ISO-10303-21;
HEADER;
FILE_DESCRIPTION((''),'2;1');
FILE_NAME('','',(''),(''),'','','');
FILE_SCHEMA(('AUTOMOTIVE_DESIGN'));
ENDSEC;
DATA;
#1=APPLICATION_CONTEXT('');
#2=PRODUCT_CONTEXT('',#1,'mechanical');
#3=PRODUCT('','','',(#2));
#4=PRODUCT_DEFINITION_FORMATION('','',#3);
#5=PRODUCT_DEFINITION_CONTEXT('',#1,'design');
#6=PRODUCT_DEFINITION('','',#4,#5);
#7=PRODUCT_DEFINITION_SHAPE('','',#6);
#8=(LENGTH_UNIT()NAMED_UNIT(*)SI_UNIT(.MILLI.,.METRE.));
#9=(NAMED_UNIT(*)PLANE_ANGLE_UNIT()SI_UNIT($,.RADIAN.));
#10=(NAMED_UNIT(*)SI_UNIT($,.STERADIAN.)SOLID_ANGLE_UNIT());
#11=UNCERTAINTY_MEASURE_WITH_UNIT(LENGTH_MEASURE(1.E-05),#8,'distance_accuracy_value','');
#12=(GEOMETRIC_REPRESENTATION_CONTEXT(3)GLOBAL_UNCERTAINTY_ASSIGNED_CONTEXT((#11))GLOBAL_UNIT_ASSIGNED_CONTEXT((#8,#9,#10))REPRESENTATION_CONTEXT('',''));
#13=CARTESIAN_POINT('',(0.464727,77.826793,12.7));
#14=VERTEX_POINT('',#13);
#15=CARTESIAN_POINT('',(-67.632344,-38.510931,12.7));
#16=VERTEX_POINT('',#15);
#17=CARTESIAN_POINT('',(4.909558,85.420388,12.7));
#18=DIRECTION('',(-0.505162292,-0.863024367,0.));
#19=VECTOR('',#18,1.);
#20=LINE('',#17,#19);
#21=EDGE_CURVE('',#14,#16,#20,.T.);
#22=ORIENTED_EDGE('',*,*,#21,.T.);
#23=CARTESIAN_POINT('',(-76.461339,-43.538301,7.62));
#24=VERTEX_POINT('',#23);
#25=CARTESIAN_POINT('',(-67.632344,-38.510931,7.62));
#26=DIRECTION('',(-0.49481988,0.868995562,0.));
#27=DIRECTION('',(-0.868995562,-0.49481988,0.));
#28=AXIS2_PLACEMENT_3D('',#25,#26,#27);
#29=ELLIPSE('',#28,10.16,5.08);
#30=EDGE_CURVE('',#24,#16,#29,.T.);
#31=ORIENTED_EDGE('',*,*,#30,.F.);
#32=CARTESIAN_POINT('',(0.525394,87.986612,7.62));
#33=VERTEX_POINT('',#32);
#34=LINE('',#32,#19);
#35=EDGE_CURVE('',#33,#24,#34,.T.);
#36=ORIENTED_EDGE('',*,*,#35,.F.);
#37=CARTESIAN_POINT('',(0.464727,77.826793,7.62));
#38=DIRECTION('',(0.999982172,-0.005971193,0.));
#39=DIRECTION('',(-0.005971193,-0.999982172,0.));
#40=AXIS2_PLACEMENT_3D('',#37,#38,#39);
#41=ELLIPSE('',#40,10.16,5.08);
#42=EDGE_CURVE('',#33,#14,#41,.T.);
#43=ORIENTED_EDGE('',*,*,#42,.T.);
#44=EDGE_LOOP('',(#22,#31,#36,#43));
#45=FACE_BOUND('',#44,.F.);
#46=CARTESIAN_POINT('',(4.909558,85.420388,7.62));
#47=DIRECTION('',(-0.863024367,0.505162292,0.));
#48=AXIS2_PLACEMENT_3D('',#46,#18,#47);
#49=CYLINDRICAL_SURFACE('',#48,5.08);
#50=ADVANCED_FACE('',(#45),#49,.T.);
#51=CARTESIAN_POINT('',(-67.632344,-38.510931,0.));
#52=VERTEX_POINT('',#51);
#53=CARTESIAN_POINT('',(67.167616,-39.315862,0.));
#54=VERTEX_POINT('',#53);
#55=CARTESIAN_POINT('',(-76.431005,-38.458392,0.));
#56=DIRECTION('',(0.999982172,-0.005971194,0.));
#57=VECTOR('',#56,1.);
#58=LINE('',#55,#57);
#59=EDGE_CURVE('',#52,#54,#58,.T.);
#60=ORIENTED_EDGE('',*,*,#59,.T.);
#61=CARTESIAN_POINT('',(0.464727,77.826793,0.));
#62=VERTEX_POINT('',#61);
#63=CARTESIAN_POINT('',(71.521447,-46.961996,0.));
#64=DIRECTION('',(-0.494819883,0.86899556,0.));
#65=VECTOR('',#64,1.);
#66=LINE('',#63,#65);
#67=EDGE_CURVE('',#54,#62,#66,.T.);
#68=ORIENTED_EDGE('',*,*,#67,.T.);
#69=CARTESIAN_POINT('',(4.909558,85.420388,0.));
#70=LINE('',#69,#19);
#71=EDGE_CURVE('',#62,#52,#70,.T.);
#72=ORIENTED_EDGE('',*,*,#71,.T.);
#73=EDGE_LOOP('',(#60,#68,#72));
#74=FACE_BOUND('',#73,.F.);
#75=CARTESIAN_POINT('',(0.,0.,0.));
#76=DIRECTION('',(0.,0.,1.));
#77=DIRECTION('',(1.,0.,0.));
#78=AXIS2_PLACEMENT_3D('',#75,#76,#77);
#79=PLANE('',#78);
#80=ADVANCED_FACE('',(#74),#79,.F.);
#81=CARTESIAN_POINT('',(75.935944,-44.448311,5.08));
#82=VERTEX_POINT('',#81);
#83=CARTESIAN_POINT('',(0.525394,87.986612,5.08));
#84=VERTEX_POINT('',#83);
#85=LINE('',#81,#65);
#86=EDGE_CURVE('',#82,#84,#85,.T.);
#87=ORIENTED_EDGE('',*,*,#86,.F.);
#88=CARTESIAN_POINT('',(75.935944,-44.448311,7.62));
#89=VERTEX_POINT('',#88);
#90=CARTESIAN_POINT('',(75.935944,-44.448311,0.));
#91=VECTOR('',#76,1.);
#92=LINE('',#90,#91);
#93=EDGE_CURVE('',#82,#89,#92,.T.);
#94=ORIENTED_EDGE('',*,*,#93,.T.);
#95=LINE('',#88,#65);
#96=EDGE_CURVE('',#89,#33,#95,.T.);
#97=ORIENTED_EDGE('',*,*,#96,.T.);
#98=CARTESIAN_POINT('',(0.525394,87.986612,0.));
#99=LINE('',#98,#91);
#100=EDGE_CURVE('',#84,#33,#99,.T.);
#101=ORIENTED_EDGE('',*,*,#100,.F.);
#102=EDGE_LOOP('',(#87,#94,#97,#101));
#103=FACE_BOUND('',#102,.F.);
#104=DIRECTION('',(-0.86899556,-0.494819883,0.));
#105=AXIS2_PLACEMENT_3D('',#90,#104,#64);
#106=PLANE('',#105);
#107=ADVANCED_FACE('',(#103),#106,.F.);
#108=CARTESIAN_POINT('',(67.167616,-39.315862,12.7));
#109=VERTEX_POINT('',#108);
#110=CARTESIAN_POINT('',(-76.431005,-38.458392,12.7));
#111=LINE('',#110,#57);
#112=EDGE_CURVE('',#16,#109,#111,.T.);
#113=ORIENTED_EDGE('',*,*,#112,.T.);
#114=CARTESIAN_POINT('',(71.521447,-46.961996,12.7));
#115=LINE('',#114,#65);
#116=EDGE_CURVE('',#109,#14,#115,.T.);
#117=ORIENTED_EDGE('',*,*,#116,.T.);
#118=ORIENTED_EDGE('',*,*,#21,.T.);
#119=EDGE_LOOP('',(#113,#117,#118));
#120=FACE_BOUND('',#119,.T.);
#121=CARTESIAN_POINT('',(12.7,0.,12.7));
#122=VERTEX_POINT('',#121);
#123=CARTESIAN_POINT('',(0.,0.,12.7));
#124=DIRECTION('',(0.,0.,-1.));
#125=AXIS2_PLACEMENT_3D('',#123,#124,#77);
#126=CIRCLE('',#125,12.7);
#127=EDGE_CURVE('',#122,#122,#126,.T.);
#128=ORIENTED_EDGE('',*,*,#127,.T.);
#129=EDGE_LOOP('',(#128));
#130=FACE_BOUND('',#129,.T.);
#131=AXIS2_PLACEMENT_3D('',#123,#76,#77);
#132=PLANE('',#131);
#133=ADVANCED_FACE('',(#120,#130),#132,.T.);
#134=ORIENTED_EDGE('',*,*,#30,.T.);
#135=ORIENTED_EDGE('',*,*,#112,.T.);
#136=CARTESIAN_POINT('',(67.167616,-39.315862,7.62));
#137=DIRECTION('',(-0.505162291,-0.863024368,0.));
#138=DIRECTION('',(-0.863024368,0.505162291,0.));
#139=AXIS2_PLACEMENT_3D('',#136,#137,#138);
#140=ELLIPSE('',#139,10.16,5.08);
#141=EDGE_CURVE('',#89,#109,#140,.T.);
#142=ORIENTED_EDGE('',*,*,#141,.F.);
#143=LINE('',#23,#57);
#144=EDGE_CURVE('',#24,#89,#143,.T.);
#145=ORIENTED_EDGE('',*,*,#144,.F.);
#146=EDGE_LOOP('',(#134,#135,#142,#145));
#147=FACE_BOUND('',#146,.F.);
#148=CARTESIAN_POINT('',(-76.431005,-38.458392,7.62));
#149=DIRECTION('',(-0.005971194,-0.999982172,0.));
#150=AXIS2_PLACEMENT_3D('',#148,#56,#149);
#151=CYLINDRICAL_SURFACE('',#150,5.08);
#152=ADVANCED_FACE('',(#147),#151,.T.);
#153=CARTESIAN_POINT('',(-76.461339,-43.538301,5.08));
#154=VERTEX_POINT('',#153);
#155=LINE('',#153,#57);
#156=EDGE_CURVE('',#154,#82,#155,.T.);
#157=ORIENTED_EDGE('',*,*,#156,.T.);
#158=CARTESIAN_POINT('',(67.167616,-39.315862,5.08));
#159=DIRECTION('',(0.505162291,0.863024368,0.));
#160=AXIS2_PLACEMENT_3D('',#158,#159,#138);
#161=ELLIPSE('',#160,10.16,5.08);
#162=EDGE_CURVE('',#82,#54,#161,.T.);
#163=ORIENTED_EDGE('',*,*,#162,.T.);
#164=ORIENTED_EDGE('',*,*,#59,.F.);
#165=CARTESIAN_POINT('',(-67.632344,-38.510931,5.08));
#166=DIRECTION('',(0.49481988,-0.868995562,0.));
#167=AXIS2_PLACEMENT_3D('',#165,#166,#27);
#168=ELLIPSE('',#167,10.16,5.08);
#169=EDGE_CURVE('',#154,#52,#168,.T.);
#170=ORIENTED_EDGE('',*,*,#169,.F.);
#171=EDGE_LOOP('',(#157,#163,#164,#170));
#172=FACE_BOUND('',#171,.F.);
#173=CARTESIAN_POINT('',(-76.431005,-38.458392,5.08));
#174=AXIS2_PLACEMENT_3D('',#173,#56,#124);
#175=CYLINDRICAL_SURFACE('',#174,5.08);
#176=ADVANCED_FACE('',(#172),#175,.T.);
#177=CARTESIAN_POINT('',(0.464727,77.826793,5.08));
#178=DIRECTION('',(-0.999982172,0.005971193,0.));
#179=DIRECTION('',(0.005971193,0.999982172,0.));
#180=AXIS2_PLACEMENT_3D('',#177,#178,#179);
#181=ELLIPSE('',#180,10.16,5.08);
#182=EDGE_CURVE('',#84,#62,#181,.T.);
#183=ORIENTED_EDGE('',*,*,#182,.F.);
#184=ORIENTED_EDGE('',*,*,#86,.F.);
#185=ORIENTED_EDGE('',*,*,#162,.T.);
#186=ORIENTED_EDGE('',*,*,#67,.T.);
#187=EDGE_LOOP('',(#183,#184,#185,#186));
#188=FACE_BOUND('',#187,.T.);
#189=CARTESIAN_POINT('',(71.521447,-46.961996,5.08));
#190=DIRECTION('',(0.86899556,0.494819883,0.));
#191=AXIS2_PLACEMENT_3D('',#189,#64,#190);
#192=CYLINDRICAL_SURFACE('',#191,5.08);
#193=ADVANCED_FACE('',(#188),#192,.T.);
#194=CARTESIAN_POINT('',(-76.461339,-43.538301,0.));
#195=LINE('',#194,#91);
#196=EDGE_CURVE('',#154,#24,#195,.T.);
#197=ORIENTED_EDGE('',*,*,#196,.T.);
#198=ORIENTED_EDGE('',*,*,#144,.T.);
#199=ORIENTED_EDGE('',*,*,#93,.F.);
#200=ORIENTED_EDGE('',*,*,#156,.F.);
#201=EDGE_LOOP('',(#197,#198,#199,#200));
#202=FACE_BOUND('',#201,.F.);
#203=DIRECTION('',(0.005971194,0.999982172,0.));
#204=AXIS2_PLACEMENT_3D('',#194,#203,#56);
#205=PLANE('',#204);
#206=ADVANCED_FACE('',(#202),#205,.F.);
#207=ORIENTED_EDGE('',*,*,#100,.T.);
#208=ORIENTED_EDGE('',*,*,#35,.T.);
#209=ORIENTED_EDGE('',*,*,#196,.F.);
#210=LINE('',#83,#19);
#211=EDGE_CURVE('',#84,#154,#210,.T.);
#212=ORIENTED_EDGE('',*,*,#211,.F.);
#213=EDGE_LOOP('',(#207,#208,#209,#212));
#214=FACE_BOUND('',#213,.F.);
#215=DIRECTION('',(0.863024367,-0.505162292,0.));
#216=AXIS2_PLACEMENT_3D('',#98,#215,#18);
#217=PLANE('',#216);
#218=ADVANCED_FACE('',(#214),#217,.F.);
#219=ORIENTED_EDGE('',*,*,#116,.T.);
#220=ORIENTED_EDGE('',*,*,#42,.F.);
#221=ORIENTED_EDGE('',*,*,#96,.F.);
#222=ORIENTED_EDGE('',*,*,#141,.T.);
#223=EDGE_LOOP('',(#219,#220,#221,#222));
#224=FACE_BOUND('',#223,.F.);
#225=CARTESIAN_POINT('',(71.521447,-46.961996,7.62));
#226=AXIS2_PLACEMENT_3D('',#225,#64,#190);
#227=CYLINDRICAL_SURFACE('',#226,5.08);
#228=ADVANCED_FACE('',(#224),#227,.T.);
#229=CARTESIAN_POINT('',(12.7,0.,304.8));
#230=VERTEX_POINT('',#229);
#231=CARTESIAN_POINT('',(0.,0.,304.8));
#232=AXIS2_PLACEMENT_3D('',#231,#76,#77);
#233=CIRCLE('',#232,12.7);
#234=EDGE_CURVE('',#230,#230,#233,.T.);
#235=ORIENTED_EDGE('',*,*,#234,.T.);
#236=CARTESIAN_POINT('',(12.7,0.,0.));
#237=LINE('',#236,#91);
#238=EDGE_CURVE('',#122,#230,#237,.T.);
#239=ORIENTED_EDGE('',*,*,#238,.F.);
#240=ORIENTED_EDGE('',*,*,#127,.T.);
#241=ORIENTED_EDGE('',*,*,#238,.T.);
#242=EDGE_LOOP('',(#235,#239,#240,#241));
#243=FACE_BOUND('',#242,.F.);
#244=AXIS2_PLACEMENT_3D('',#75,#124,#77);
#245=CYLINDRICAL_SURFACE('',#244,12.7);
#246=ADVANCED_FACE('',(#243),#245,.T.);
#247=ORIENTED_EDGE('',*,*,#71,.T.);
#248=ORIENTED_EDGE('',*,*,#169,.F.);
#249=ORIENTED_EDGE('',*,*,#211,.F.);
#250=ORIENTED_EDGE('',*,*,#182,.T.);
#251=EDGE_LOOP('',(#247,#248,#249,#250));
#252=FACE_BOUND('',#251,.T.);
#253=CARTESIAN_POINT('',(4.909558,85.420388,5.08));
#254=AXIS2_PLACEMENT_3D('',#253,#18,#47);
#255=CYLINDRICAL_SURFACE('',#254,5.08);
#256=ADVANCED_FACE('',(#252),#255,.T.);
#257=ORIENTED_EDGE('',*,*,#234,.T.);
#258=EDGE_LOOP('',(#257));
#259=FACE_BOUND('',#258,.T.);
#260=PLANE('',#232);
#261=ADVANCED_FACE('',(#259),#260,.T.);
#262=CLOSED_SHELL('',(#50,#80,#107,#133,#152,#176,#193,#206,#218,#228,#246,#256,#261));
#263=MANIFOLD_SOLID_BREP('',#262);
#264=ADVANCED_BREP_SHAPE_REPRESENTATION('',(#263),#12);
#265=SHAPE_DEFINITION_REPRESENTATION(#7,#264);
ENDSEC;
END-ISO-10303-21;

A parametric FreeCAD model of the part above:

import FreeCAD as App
import Part
import Sketcher
Q = App.Units.Quantity


def edges_at(feature, points):
    """Names of the edges that pass closest to the given points."""
    edges = feature.Shape.Edges
    near = lambda p: min(range(len(edges)), key=lambda i: edges[i].distToShape(Part.Vertex(*p))[0])
    return sorted({f"Edge{near(p) + 1}" for p in points})


def add_polygon(sketch, points):
    """Adds a closed chain of lines whose ends are joined by coincident constraints."""
    first, n = sketch.GeometryCount, len(points)
    for a, b in zip(points, points[1:] + points[:1]):
        sketch.addGeometry(Part.LineSegment(App.Vector(*a, 0), App.Vector(*b, 0)), False)
    for i in range(n):
        sketch.addConstraint(Sketcher.Constraint("Coincident", first + i, 2, first + (i + 1) % n, 1))

doc = App.newDocument("Part")
body = doc.addObject("PartDesign::Body", "Body")

sketch1 = body.newObject("Sketcher::SketchObject", "Sketch")
sketch1.AttachmentSupport = (doc.getObject("XY_Plane"), [""])
sketch1.MapMode = "FlatFace"
add_polygon(sketch1, [(0.525394, 87.986612), (-76.461339, -43.538301), (75.935944, -44.448311)])
sketch1.addConstraint(Sketcher.Constraint("Equal", 0, 1))
sketch1.addConstraint(Sketcher.Constraint("Equal", 1, 2))
sketch1.addConstraint(Sketcher.Constraint("Distance", 0, Q("6 in")))
sketch1.addConstraint(Sketcher.Constraint("DistanceY", 0, 2, -1, 1, 43.538301))
sketch1.addConstraint(Sketcher.Constraint("DistanceX", 0, 2, -1, 1, 76.461339))
sketch1.addConstraint(Sketcher.Constraint("DistanceY", 1, 2, -1, 1, 44.448311))
pad1 = body.newObject("PartDesign::Pad", "Pad")
pad1.Profile = sketch1
pad1.Length = Q("0.5 in")

sketch2 = body.newObject("Sketcher::SketchObject", "Sketch001")
sketch2.AttachmentSupport = (doc.getObject("XY_Plane"), [""])
sketch2.MapMode = "FlatFace"
sketch2.addGeometry(Part.Circle(App.Vector(0, 0, 0), App.Vector(0, 0, 1), 12.7), False)
sketch2.addConstraint(Sketcher.Constraint("Coincident", 0, 3, -1, 1))
sketch2.addConstraint(Sketcher.Constraint("Diameter", 0, Q("1 in")))
pad2 = body.newObject("PartDesign::Pad", "Pad001")
pad2.Profile = sketch2
pad2.Length = Q("12 in")
doc.recompute()

fillet = body.newObject("PartDesign::Fillet", "Fillet")
fillet.Base = (pad2, edges_at(pad2, [(-37.968, 22.224, 12.7), (38.231, 21.769, 12.7), (-0.263, -43.993, 12.7)]))
fillet.Radius = Q("0.2 in")
doc.recompute()

fillet2 = body.newObject("PartDesign::Fillet", "Fillet001")
fillet2.Base = (fillet, edges_at(fillet, [(38.231, 21.769, 0), (-37.968, 22.224, 0), (-0.263, -43.993, 0)]))
fillet2.Radius = Q("0.2 in")

doc.recompute()
